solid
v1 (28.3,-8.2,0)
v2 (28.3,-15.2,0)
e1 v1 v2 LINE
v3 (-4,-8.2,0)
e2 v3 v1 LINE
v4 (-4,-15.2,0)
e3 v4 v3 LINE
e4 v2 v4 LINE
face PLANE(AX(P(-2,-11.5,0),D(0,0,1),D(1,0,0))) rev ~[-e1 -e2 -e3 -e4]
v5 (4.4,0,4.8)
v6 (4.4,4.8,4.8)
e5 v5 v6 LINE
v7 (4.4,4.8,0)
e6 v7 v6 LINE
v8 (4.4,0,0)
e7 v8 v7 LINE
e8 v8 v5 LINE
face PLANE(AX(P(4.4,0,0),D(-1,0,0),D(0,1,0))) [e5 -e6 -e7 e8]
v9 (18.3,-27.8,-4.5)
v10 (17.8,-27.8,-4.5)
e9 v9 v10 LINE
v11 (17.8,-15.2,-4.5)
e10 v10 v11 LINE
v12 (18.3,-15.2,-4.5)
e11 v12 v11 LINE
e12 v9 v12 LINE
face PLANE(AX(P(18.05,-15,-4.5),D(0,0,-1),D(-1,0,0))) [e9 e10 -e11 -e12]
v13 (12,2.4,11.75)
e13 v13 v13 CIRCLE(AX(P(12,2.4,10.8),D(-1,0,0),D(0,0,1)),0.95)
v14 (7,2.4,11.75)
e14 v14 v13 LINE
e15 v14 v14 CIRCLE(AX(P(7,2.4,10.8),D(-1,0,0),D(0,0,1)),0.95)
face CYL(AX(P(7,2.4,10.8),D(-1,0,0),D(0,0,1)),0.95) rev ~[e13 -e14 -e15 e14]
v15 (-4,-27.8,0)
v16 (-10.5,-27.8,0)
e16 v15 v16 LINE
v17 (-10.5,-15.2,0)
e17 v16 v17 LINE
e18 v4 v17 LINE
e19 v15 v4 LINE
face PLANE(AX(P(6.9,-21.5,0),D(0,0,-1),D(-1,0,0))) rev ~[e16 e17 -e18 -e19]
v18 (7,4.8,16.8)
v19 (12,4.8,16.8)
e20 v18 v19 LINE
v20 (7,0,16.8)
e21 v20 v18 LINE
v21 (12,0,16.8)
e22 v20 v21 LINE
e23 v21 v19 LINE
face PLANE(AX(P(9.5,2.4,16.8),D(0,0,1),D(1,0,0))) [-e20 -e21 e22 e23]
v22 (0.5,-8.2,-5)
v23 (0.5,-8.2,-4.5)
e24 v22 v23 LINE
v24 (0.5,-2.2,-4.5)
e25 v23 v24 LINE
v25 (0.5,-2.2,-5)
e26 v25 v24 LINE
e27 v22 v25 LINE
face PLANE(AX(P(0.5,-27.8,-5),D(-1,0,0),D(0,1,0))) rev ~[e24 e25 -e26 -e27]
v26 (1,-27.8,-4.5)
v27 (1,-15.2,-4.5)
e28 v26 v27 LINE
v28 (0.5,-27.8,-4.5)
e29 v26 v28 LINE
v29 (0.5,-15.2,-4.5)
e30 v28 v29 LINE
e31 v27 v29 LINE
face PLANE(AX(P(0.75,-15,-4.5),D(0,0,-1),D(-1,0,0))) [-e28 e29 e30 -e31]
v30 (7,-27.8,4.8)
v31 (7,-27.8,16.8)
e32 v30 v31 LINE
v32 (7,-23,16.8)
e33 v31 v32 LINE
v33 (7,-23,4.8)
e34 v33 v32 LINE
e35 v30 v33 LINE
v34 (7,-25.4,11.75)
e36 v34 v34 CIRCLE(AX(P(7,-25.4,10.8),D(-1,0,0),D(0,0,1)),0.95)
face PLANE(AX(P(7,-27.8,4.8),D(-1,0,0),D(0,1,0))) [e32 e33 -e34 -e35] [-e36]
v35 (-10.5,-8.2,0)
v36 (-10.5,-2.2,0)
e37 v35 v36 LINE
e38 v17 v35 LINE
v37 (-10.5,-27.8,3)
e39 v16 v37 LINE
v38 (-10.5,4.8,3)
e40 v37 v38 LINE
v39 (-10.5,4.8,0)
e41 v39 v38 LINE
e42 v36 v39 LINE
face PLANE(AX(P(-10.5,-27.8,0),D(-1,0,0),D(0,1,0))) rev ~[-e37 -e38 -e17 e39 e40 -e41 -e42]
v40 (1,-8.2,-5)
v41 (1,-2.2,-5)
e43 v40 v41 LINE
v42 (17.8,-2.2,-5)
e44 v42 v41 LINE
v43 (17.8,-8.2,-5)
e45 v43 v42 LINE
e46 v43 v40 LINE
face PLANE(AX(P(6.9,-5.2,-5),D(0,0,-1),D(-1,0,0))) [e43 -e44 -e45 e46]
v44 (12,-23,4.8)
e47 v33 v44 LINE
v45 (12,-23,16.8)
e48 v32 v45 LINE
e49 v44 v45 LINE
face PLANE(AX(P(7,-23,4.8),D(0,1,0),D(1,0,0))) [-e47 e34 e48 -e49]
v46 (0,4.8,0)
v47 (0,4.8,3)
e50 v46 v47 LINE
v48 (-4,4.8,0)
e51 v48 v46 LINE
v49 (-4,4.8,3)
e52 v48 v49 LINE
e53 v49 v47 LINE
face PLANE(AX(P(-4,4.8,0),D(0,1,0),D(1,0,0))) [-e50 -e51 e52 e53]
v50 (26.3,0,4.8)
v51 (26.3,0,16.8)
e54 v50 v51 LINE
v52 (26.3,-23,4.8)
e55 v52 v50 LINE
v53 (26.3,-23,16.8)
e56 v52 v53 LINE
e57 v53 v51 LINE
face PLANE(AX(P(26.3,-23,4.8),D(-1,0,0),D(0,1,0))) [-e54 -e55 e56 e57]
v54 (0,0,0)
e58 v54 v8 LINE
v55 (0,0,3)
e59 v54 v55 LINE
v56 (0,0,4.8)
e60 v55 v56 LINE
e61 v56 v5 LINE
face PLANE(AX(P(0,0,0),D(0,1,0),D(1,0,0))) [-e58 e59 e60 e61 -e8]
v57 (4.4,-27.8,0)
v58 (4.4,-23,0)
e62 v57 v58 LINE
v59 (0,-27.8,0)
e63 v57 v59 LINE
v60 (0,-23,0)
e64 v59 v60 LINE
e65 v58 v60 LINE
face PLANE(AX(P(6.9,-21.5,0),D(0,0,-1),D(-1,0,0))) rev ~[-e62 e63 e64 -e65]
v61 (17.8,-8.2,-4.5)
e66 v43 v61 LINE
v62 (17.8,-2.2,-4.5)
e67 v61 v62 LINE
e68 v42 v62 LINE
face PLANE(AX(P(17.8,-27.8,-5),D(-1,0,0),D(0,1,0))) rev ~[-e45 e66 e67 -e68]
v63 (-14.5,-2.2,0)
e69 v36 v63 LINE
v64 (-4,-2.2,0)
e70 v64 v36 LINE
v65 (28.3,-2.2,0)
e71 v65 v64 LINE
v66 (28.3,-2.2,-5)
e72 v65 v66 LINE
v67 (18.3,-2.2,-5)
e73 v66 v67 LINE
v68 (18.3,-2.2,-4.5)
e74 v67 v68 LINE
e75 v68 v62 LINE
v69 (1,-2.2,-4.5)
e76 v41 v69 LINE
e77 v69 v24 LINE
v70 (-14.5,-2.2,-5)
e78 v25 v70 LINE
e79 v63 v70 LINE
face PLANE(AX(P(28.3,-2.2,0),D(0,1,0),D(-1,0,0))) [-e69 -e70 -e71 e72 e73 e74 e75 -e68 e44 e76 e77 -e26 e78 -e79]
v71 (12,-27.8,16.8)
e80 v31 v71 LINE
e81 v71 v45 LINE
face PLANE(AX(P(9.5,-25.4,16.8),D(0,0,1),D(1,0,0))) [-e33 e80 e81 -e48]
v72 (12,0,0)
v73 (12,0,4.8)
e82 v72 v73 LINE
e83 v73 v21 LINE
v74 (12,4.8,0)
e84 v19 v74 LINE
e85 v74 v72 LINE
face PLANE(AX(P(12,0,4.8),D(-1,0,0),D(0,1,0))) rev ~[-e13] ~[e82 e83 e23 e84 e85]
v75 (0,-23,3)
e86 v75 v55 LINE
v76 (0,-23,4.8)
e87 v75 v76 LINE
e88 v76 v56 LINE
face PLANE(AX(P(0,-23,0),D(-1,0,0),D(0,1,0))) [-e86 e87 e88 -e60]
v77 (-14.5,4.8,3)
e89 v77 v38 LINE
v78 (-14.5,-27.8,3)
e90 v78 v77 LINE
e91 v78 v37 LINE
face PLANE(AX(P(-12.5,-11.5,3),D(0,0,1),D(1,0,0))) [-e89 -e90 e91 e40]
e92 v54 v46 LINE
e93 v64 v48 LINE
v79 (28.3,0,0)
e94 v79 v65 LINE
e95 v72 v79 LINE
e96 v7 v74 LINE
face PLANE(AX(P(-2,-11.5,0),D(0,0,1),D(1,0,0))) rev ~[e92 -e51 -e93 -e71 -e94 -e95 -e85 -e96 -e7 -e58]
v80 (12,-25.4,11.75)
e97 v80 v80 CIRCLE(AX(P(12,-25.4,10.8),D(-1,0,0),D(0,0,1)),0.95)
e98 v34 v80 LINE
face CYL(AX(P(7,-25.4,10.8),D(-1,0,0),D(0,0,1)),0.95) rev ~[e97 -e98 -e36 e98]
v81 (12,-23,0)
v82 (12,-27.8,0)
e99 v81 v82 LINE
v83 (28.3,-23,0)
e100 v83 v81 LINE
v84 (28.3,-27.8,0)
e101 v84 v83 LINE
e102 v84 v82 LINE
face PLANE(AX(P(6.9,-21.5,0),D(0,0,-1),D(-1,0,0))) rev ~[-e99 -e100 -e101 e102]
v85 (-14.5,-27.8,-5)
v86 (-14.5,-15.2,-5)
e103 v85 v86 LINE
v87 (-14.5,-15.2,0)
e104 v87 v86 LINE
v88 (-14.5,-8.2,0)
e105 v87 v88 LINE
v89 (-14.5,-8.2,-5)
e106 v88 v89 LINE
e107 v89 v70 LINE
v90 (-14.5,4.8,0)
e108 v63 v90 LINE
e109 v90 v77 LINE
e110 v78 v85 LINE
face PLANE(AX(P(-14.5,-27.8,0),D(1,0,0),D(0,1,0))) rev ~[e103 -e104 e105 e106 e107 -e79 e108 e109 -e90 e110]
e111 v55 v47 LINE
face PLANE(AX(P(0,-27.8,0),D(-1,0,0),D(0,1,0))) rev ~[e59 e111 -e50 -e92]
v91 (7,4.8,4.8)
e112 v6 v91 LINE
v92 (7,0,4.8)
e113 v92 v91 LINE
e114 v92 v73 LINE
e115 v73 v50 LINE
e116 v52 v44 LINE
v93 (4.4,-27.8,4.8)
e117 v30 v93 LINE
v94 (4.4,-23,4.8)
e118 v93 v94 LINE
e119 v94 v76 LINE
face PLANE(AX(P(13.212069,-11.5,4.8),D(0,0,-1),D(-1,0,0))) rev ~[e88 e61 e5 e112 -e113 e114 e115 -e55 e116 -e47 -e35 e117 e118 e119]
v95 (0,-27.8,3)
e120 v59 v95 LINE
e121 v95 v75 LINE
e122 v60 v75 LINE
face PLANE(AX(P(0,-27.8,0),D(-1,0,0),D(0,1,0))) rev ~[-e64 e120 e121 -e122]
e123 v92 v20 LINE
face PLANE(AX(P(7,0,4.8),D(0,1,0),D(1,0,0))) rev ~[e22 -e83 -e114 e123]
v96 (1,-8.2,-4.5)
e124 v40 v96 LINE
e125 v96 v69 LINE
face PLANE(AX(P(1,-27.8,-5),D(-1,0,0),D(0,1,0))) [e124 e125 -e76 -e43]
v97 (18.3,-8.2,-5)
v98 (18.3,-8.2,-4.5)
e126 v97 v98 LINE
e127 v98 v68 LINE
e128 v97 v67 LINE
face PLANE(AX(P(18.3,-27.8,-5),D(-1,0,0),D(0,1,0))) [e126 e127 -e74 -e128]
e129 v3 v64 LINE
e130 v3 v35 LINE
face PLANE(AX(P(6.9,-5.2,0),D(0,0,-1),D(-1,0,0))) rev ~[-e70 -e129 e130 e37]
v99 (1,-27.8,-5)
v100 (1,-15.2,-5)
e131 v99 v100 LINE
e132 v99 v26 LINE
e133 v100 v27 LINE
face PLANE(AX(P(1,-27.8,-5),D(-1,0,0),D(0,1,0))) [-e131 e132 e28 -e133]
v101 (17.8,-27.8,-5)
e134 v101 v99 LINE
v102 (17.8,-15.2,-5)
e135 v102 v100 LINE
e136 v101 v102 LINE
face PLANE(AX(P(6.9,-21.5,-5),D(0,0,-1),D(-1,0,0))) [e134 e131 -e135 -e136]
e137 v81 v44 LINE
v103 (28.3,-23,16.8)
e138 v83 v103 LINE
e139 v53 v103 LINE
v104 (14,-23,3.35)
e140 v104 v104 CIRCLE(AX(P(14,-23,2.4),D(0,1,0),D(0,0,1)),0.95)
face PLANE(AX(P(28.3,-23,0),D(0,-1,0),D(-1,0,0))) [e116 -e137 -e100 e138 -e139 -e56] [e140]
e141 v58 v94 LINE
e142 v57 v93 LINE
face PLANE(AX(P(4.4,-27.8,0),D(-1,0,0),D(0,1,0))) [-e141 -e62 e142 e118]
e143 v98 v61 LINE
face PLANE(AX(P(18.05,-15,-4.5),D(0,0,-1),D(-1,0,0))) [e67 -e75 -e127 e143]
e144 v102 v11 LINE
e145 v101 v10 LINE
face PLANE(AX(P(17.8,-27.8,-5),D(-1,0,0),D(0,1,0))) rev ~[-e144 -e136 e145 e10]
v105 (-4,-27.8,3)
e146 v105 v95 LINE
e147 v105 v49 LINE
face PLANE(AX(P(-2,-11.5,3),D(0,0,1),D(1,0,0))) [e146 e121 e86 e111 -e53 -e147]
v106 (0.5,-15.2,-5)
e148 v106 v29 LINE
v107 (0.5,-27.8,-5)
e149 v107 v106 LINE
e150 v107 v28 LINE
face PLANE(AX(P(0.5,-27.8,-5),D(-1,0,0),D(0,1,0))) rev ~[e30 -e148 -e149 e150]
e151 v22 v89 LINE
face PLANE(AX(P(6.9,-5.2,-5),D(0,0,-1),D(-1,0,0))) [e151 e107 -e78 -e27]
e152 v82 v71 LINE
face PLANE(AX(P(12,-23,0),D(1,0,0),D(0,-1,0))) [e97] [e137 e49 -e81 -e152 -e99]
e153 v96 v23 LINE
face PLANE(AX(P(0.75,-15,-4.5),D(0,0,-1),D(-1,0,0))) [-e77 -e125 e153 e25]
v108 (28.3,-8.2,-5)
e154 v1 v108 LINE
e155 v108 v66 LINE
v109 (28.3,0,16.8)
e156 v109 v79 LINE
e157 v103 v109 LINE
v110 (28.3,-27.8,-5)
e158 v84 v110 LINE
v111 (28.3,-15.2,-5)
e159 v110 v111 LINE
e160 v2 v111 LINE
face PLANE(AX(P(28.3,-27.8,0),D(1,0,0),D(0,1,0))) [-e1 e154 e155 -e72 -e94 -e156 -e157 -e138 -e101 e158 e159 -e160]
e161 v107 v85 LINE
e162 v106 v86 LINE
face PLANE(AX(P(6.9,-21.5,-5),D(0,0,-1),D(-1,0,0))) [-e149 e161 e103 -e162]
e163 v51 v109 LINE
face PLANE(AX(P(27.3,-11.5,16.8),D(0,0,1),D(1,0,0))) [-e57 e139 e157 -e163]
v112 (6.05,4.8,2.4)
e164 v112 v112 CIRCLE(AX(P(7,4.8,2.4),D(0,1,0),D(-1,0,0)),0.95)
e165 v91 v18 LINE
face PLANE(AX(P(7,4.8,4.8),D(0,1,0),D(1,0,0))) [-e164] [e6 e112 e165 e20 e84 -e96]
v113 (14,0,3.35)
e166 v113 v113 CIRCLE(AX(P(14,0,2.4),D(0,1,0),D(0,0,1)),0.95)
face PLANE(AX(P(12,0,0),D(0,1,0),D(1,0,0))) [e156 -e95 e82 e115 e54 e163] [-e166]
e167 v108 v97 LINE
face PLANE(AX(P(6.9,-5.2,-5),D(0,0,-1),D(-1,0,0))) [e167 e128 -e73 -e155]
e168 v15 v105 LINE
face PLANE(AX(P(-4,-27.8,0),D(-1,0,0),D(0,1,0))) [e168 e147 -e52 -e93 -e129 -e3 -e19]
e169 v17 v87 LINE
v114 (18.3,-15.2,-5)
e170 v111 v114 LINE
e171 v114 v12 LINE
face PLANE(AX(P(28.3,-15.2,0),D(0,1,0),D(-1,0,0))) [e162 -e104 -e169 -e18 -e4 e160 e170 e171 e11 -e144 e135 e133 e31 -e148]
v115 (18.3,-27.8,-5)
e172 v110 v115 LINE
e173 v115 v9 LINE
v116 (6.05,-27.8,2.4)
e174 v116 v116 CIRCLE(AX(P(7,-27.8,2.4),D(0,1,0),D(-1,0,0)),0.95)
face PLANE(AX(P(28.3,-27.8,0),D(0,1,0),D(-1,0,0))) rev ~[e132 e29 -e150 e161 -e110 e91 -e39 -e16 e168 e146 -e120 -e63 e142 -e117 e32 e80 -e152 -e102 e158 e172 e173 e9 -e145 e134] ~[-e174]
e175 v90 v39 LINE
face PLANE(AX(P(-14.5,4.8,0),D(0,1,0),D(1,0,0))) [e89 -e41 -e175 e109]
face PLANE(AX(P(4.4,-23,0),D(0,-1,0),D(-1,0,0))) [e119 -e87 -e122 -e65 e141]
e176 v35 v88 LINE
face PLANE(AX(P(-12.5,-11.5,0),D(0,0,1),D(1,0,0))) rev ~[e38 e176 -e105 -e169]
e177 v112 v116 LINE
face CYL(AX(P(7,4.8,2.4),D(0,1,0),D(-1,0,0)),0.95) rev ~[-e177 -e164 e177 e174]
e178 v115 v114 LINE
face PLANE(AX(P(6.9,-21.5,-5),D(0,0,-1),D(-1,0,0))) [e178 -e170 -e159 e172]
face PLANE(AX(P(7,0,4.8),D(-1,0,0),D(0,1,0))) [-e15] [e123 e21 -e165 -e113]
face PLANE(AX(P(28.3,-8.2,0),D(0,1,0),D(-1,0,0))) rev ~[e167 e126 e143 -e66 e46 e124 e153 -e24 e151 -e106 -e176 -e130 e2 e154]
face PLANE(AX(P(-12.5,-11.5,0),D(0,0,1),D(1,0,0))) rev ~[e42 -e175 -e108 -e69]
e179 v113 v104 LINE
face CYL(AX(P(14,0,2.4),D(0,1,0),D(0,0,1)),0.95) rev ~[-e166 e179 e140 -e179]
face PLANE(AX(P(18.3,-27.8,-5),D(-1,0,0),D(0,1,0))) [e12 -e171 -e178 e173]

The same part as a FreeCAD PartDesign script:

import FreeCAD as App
import Part
import Sketcher

V = App.Vector


def add_polygon(sketch, points):
    """Adds a closed chain of lines whose ends are joined by coincident constraints."""
    first, n = sketch.GeometryCount, len(points)
    for a, b in zip(points, points[1:] + points[:1]):
        sketch.addGeometry(Part.LineSegment(App.Vector(*a, 0), App.Vector(*b, 0)), False)
    for i in range(n):
        sketch.addConstraint(Sketcher.Constraint("Coincident", first + i, 2, first + (i + 1) % n, 1))

doc = App.newDocument("Part")
body = doc.addObject("PartDesign::Body", "Body")

sketch1 = body.newObject("Sketcher::SketchObject", "Sketch")
sketch1.AttachmentSupport = (doc.getObject("XY_Plane"), [""])
sketch1.MapMode = "FlatFace"
add_polygon(sketch1, [(28.3, 0), (12, 0), (12, 4.8), (4.4, 4.8), (4.4, 0), (0, 0), (0, -23), (4.4, -23), (4.4, -27.8), (12, -27.8), (12, -23), (28.3, -23)])
sketch1.addConstraint([
    Sketcher.Constraint("Horizontal", 0),
    Sketcher.Constraint("Vertical", 1),
    Sketcher.Constraint("Horizontal", 2),
    Sketcher.Constraint("Vertical", 3),
    Sketcher.Constraint("Horizontal", 4),
    Sketcher.Constraint("Vertical", 5),
    Sketcher.Constraint("Horizontal", 6),
    Sketcher.Constraint("Vertical", 7),
    Sketcher.Constraint("Horizontal", 8),
    Sketcher.Constraint("Vertical", 9),
    Sketcher.Constraint("Horizontal", 10),
    Sketcher.Constraint("Vertical", 11),
    Sketcher.Constraint("Coincident", 4, 2, -1, 1),
    Sketcher.Constraint("PointOnObject", 0, 2, -1),
    Sketcher.Constraint("Horizontal", 6, 2, 9, 2),
    Sketcher.Constraint("Vertical", 3, 2, 6, 2),
    Sketcher.Constraint("Vertical", 1, 2, 8, 2),
    Sketcher.Constraint("Equal", 3, 7),
    Sketcher.Constraint("DistanceY", 5, 2, 5, 1, 23.0),
    Sketcher.Constraint("DistanceX", 0, 2, 0, 1, 16.3),
    Sketcher.Constraint("DistanceX", 2, 2, 2, 1, 7.6),
    Sketcher.Constraint("DistanceX", 4, 2, 4, 1, 4.4),
    Sketcher.Constraint("DistanceY", 1, 1, 1, 2, 4.8),
])
pad1 = body.newObject("PartDesign::Pad", "Pad")
pad1.Profile = sketch1
pad1.Length = 4.8

sketch2 = body.newObject("Sketcher::SketchObject", "Sketch001")
sketch2.AttachmentSupport = (doc.getObject("XY_Plane"), [""])
sketch2.MapMode = "FlatFace"
sketch2.AttachmentOffset = App.Placement(V(0, 0, 4.8), App.Rotation())
add_polygon(sketch2, [(7, 4.8), (7, 0), (12, 0), (12, 4.8)])
add_polygon(sketch2, [(7, -23), (7, -27.8), (12, -27.8), (12, -23)])
add_polygon(sketch2, [(26.3, 0), (26.3, -23), (28.3, -23), (28.3, 0)])
sketch2.addConstraint([
    Sketcher.Constraint("Vertical", 0),
    Sketcher.Constraint("Horizontal", 1),
    Sketcher.Constraint("Vertical", 2),
    Sketcher.Constraint("Horizontal", 3),
    Sketcher.Constraint("Vertical", 4),
    Sketcher.Constraint("Horizontal", 5),
    Sketcher.Constraint("Vertical", 6),
    Sketcher.Constraint("Horizontal", 7),
    Sketcher.Constraint("Vertical", 8),
    Sketcher.Constraint("Horizontal", 9),
    Sketcher.Constraint("Vertical", 10),
    Sketcher.Constraint("Horizontal", 11),
    Sketcher.Constraint("PointOnObject", 0, 2, -1),
    Sketcher.Constraint("PointOnObject", 10, 2, -1),
    Sketcher.Constraint("Horizontal", 7, 2, 8, 2),
    Sketcher.Constraint("Vertical", 3, 2, 4, 2),
    Sketcher.Constraint("Vertical", 2, 2, 5, 2),
    Sketcher.Constraint("Equal", 2, 4),
    Sketcher.Constraint("DistanceX", 1, 1, 1, 2, 5.0),
    Sketcher.Constraint("DistanceX", 9, 1, 9, 2, 2.0),
    Sketcher.Constraint("DistanceY", 8, 2, 8, 1, 23.0),
    Sketcher.Constraint("DistanceY", 0, 2, 0, 1, 4.8),
    Sketcher.Constraint("DistanceX", -1, 1, 0, 2, 7.0),
    Sketcher.Constraint("DistanceX", -1, 1, 8, 2, 26.3),
])
pad2 = body.newObject("PartDesign::Pad", "Pad001")
pad2.Profile = sketch2
pad2.Length = 12

sketch3 = body.newObject("Sketcher::SketchObject", "Sketch002")
sketch3.AttachmentSupport = (doc.getObject("YZ_Plane"), [""])
sketch3.MapMode = "FlatFace"
sketch3.AttachmentOffset = App.Placement(V(0, 0, 7), App.Rotation())
sketch3.addGeometry([
    Part.Circle(V(2.4, 10.8, 0), V(0, 0, 1), 0.9),
    Part.Circle(V(-25.4, 10.8, 0), V(0, 0, 1), 0.9),
], False)
sketch3.addConstraint([
    Sketcher.Constraint("Equal", 0, 1),
    Sketcher.Constraint("Horizontal", 0, 3, 1, 3),
    Sketcher.Constraint("Diameter", 0, 1.9),
    Sketcher.Constraint("DistanceX", -1, 1, 0, 3, 2.4),
    Sketcher.Constraint("DistanceY", -1, 1, 0, 3, 10.8),
    Sketcher.Constraint("DistanceX", 1, 3, -1, 1, 25.4),
])
pocket1 = body.newObject("PartDesign::Pocket", "Pocket")
pocket1.Profile = sketch3
pocket1.Length = 5
pocket1.Reversed = True

sketch4 = body.newObject("Sketcher::SketchObject", "Sketch003")
sketch4.AttachmentSupport = (doc.getObject("XZ_Plane"), [""])
sketch4.MapMode = "FlatFace"
sketch4.addGeometry(Part.Circle(V(14, 2.4, 0), V(0, 0, 1), 0.9), False)
sketch4.addConstraint([
    Sketcher.Constraint("Diameter", 0, 1.9),
    Sketcher.Constraint("DistanceX", -1, 1, 0, 3, 14.0),
    Sketcher.Constraint("DistanceY", -1, 1, 0, 3, 2.4),
])
pocket2 = body.newObject("PartDesign::Pocket", "Pocket001")
pocket2.Profile = sketch4
pocket2.Length = 32
pocket2.Reversed = True

sketch5 = body.newObject("Sketcher::SketchObject", "Sketch004")
sketch5.AttachmentSupport = (doc.getObject("XY_Plane"), [""])
sketch5.MapMode = "FlatFace"
add_polygon(sketch5, [(28, -2), (28, -8), (-14, -8), (-14, -2)])
sketch5.addConstraint([
    Sketcher.Constraint("Vertical", 0),
    Sketcher.Constraint("Horizontal", 1),
    Sketcher.Constraint("Vertical", 2),
    Sketcher.Constraint("Horizontal", 3),
    Sketcher.Constraint("DistanceY", 0, 2, 0, 1, 6.0),
    Sketcher.Constraint("DistanceX", 1, 2, 1, 1, 42.8),
    Sketcher.Constraint("DistanceX", -1, 1, 0, 2, 28.3),
    Sketcher.Constraint("DistanceY", 0, 2, -1, 1, 8.2),
])
pad3 = body.newObject("PartDesign::Pad", "Pad002")
pad3.Profile = sketch5
pad3.Length = 5
pad3.Reversed = True

sketch6 = body.newObject("Sketcher::SketchObject", "Sketch005")
sketch6.AttachmentSupport = (doc.getObject("XY_Plane"), [""])
sketch6.MapMode = "FlatFace"
add_polygon(sketch6, [(-4, 4.8), (-4, -27.8), (0, -27.8), (0, 4.8)])
add_polygon(sketch6, [(-14.5, 4.8), (-14.5, -27.8), (-10.5, -27.8), (-10.5, 4.8)])
sketch6.addConstraint([
    Sketcher.Constraint("Vertical", 0),
    Sketcher.Constraint("Horizontal", 1),
    Sketcher.Constraint("Vertical", 2),
    Sketcher.Constraint("Horizontal", 3),
    Sketcher.Constraint("Vertical", 4),
    Sketcher.Constraint("Horizontal", 5),
    Sketcher.Constraint("Vertical", 6),
    Sketcher.Constraint("Horizontal", 7),
    Sketcher.Constraint("PointOnObject", 1, 2, -2),
    Sketcher.Constraint("Horizontal", 1, 2, 4, 2),
    Sketcher.Constraint("Horizontal", 3, 2, 6, 2),
    Sketcher.Constraint("Equal", 3, 5),
    Sketcher.Constraint("DistanceX", 1, 1, 1, 2, 4.0),
    Sketcher.Constraint("DistanceY", 0, 2, 0, 1, 32.6),
    Sketcher.Constraint("DistanceY", 0, 2, -1, 1, 27.8),
    Sketcher.Constraint("DistanceX", 4, 2, -1, 1, 14.5),
])
pad4 = body.newObject("PartDesign::Pad", "Pad003")
pad4.Profile = sketch6
pad4.Length = 3

sketch7 = body.newObject("Sketcher::SketchObject", "Sketch006")
sketch7.AttachmentSupport = (doc.getObject("XY_Plane"), [""])
sketch7.MapMode = "FlatFace"
add_polygon(sketch7, [(28, -15), (28, -28), (-14, -28), (-14, -15)])
sketch7.addConstraint([
    Sketcher.Constraint("Vertical", 0),
    Sketcher.Constraint("Horizontal", 1),
    Sketcher.Constraint("Vertical", 2),
    Sketcher.Constraint("Horizontal", 3),
    Sketcher.Constraint("DistanceX", 1, 2, 1, 1, 42.8),
    Sketcher.Constraint("DistanceY", 0, 2, 0, 1, 12.6),
    Sketcher.Constraint("DistanceX", -1, 1, 0, 2, 28.3),
    Sketcher.Constraint("DistanceY", 0, 2, -1, 1, 27.8),
])
pad5 = body.newObject("PartDesign::Pad", "Pad004")
pad5.Profile = sketch7
pad5.Length = 5
pad5.Reversed = True

sketch8 = body.newObject("Sketcher::SketchObject", "Sketch007")
sketch8.AttachmentSupport = (doc.getObject("XZ_Plane"), [""])
sketch8.MapMode = "FlatFace"
sketch8.AttachmentOffset = App.Placement(V(0, 0, -4.8), App.Rotation())
sketch8.addGeometry(Part.Circle(V(7, 2.4, 0), V(0, 0, 1), 0.9), False)
sketch8.addConstraint([
    Sketcher.Constraint("Diameter", 0, 1.9),
    Sketcher.Constraint("DistanceX", -1, 1, 0, 3, 7.0),
    Sketcher.Constraint("DistanceY", -1, 1, 0, 3, 2.4),
])
pocket3 = body.newObject("PartDesign::Pocket", "Pocket002")
pocket3.Profile = sketch8
pocket3.Type = "ThroughAll"
pocket3.Reversed = True

sketch9 = body.newObject("Sketcher::SketchObject", "Sketch008")
sketch9.AttachmentSupport = (doc.getObject("XY_Plane"), [""])
sketch9.MapMode = "FlatFace"
sketch9.AttachmentOffset = App.Placement(V(0, 0, -5), App.Rotation())
add_polygon(sketch9, [(18.3, -2.2), (18.3, -27.8), (17.8, -27.8), (17.8, -2.2)])
add_polygon(sketch9, [(1, -2.2), (1, -27.8), (0.5, -27.8), (0.5, -2.2)])
sketch9.addConstraint([
    Sketcher.Constraint("Vertical", 0),
    Sketcher.Constraint("Horizontal", 1),
    Sketcher.Constraint("Vertical", 2),
    Sketcher.Constraint("Horizontal", 3),
    Sketcher.Constraint("Vertical", 4),
    Sketcher.Constraint("Horizontal", 5),
    Sketcher.Constraint("Vertical", 6),
    Sketcher.Constraint("Horizontal", 7),
    Sketcher.Constraint("Horizontal", 1, 2, 4, 2),
    Sketcher.Constraint("Horizontal", 3, 2, 6, 2),
    Sketcher.Constraint("Equal", 3, 5),
    Sketcher.Constraint("DistanceX", 1, 2, 1, 1, 0.5),
    Sketcher.Constraint("DistanceY", 0, 2, 0, 1, 25.6),
    Sketcher.Constraint("DistanceX", -1, 1, 4, 2, 1.0),
    Sketcher.Constraint("DistanceX", -1, 1, 0, 2, 18.3),
    Sketcher.Constraint("DistanceY", 0, 2, -1, 1, 27.8),
])
pocket4 = body.newObject("PartDesign::Pocket", "Pocket003")
pocket4.Profile = sketch9
pocket4.Length = 0.5
pocket4.Reversed = True

doc.recompute()
